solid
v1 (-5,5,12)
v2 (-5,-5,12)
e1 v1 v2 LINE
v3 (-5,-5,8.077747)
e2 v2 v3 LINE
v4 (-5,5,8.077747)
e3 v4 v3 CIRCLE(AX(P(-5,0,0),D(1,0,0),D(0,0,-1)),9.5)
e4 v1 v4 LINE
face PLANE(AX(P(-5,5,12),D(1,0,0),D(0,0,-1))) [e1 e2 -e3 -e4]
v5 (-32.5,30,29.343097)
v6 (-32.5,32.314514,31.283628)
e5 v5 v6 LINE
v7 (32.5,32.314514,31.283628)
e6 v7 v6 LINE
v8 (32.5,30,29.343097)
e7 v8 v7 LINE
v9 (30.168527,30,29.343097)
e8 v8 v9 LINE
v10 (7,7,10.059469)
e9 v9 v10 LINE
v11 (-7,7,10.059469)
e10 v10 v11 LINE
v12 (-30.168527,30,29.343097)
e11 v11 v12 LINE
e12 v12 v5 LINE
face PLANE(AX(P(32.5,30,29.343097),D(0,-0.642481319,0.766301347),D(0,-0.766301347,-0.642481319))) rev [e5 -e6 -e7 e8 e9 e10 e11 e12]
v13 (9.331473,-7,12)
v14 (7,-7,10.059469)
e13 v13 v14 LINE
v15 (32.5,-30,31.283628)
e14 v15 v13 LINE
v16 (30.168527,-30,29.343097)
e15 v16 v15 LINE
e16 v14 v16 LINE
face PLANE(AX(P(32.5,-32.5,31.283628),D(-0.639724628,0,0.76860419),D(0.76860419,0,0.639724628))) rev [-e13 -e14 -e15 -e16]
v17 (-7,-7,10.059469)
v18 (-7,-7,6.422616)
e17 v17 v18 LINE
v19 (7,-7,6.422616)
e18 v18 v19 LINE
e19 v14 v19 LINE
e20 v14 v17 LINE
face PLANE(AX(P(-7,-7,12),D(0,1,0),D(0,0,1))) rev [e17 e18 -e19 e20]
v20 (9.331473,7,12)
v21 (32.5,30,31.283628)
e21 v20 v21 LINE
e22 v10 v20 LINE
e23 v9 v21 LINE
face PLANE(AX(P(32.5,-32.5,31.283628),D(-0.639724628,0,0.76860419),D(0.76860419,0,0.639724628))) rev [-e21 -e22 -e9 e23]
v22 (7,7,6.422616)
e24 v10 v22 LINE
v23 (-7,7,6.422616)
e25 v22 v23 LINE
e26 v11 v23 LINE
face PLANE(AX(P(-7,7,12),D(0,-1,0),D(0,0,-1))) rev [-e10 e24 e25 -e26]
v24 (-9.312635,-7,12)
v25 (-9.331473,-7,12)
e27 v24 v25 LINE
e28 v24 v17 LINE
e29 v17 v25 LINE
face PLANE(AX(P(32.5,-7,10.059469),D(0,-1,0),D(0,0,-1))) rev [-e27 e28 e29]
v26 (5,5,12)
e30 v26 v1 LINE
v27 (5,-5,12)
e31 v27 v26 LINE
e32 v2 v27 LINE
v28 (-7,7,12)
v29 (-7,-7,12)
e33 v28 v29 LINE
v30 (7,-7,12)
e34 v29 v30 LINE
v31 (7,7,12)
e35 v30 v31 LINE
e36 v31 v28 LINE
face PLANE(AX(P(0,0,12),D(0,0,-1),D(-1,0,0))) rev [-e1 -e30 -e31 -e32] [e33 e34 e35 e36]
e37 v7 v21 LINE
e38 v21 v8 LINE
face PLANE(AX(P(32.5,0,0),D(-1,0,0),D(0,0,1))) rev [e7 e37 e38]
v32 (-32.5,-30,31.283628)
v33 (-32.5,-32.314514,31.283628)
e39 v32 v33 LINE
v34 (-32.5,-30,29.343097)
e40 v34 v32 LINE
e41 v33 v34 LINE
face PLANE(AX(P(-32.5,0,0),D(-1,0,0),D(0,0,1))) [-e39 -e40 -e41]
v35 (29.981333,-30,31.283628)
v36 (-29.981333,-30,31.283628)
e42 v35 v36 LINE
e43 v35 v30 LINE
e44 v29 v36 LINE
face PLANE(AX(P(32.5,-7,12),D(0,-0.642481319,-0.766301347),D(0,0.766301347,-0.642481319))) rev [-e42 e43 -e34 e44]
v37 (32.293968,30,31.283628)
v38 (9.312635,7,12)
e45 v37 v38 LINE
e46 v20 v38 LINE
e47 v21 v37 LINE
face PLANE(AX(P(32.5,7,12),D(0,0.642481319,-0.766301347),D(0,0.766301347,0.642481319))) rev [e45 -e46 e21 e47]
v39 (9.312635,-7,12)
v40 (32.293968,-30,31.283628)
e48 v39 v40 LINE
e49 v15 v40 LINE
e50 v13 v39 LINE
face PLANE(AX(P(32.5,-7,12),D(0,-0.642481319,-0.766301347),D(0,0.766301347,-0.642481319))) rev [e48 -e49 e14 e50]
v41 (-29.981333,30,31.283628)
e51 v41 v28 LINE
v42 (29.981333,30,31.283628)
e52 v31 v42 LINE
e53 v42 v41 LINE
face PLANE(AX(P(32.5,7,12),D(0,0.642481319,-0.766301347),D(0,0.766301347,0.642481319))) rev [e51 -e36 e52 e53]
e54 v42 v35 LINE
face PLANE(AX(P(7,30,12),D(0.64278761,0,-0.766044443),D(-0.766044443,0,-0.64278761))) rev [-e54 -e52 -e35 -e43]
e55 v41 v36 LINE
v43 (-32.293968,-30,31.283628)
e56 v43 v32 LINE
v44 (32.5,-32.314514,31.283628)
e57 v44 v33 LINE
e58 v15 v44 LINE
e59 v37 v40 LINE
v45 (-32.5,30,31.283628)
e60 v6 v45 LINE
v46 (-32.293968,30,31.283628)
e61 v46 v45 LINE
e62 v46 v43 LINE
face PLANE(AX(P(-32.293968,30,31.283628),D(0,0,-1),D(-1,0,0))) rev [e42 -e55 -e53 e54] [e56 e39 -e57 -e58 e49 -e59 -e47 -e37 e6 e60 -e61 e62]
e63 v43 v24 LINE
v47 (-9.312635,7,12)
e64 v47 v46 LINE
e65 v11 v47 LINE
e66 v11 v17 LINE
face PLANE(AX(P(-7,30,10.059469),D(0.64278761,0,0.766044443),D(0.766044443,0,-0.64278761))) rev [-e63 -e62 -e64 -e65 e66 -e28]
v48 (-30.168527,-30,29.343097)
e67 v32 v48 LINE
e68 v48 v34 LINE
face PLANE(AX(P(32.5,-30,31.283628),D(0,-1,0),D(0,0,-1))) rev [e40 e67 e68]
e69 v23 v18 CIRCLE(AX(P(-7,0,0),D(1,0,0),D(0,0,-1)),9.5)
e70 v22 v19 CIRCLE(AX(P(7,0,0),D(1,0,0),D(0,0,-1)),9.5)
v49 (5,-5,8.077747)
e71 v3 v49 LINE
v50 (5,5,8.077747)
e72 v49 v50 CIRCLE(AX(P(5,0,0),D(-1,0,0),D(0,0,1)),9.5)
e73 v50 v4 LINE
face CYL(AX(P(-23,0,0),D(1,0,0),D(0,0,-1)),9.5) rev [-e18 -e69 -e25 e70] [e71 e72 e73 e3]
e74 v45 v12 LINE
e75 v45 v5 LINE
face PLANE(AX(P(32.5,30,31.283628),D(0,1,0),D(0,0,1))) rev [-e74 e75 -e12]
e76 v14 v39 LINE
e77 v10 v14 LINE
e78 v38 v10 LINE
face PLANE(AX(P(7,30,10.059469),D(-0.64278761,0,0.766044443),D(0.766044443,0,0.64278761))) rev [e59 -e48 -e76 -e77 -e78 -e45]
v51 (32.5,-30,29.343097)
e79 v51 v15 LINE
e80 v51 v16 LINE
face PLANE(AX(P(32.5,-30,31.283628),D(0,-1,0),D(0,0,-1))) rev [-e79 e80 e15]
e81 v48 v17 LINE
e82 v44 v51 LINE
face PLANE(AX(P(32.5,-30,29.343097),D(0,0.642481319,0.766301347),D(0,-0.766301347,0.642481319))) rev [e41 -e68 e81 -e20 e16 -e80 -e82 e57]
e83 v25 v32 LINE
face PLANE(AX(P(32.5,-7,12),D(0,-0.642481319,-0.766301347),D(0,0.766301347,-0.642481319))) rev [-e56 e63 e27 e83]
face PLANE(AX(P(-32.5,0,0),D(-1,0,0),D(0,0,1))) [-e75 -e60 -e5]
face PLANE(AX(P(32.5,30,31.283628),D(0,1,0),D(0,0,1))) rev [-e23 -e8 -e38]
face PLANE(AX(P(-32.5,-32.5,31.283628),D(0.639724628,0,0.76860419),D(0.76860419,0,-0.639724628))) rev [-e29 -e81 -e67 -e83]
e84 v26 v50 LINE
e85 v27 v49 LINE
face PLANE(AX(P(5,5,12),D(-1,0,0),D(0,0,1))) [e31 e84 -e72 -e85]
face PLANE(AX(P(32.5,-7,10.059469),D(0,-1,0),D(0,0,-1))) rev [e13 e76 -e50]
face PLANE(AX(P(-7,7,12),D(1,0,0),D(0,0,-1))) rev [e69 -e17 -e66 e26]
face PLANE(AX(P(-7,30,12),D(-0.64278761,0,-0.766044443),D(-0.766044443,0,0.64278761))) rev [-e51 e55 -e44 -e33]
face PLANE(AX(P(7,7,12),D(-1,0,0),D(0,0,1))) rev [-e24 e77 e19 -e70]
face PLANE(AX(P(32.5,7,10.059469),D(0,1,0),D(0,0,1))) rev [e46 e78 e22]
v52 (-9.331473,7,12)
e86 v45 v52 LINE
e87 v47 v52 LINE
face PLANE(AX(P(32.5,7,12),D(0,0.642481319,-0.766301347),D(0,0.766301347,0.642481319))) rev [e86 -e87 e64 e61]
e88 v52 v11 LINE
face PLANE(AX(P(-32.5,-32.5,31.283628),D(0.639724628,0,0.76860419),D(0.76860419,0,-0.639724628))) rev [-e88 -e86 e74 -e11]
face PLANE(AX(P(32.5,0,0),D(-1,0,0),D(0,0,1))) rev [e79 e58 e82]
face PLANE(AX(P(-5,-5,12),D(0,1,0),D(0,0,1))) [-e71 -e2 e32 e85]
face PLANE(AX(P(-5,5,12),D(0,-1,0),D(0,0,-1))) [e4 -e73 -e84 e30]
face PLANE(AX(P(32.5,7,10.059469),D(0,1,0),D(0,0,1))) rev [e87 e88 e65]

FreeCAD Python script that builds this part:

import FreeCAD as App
import Part
import Sketcher
Q = App.Units.Quantity

doc = App.newDocument("Part")
body = doc.addObject("PartDesign::Body", "Body")

# Sketch on XY plane
sketch1 = body.newObject("Sketcher::SketchObject", "Sketch")
sketch1.AttachmentSupport = (doc.getObject("XY_Plane"), [""])
sketch1.MapMode = "FlatFace"
sketch1.addGeometry(Part.LineSegment(App.Vector(-7, 7, 0), App.Vector(-7, -7, 0)), False)
sketch1.addGeometry(Part.LineSegment(App.Vector(-7, -7, 0), App.Vector(7, -7, 0)), False)
sketch1.addGeometry(Part.LineSegment(App.Vector(7, -7, 0), App.Vector(7, 7, 0)), False)
sketch1.addGeometry(Part.LineSegment(App.Vector(7, 7, 0), App.Vector(-7, 7, 0)), False)
sketch1.addGeometry(Part.LineSegment(App.Vector(5, -5, 0), App.Vector(-5, -5, 0)), False)
sketch1.addGeometry(Part.LineSegment(App.Vector(-5, -5, 0), App.Vector(-5, 5, 0)), False)
sketch1.addGeometry(Part.LineSegment(App.Vector(-5, 5, 0), App.Vector(5, 5, 0)), False)
sketch1.addGeometry(Part.LineSegment(App.Vector(5, 5, 0), App.Vector(5, -5, 0)), False)
sketch1.addConstraint(Sketcher.Constraint("Coincident", 0, 2, 1, 1))
sketch1.addConstraint(Sketcher.Constraint("Coincident", 1, 2, 2, 1))
sketch1.addConstraint(Sketcher.Constraint("Coincident", 2, 2, 3, 1))
sketch1.addConstraint(Sketcher.Constraint("Coincident", 3, 2, 0, 1))
sketch1.addConstraint(Sketcher.Constraint("Coincident", 4, 2, 5, 1))
sketch1.addConstraint(Sketcher.Constraint("Coincident", 5, 2, 6, 1))
sketch1.addConstraint(Sketcher.Constraint("Coincident", 6, 2, 7, 1))
sketch1.addConstraint(Sketcher.Constraint("Coincident", 7, 2, 4, 1))
sketch1.addConstraint(Sketcher.Constraint("Vertical", 0))
sketch1.addConstraint(Sketcher.Constraint("Horizontal", 1))
sketch1.addConstraint(Sketcher.Constraint("Vertical", 2))
sketch1.addConstraint(Sketcher.Constraint("Horizontal", 3))
sketch1.addConstraint(Sketcher.Constraint("Horizontal", 4))
sketch1.addConstraint(Sketcher.Constraint("Vertical", 5))
sketch1.addConstraint(Sketcher.Constraint("Horizontal", 6))
sketch1.addConstraint(Sketcher.Constraint("Vertical", 7))
sketch1.addConstraint(Sketcher.Constraint("Symmetric", 0, 2, 2, 2, -1, 1))
sketch1.addConstraint(Sketcher.Constraint("Symmetric", 4, 2, 6, 2, -1, 1))
sketch1.addConstraint(Sketcher.Constraint("Equal", 3, 0))
sketch1.addConstraint(Sketcher.Constraint("Equal", 6, 5))
sketch1.addConstraint(Sketcher.Constraint("DistanceX", 1, 1, 1, 2, Q("14 mm")))
sketch1.addConstraint(Sketcher.Constraint("DistanceX", 4, 2, 4, 1, Q("10 mm")))
pad1 = body.newObject("PartDesign::Pad", "Pad")
pad1.Profile = sketch1
pad1.Length = 12

# Sketch on YZ plane
sketch2 = body.newObject("Sketcher::SketchObject", "Sketch001")
sketch2.AttachmentSupport = (doc.getObject("YZ_Plane"), [""])
sketch2.MapMode = "FlatFace"
sketch2.AttachmentOffset = App.Placement(App.Vector(0, 0, 7), App.Rotation())
sketch2.addGeometry(Part.Circle(App.Vector(0, 0, 0), App.Vector(0, 0, 1), 10), False)
sketch2.addConstraint(Sketcher.Constraint("Coincident", 0, 3, -1, 1))
sketch2.addConstraint(Sketcher.Constraint("Diameter", 0, Q("19 mm")))
pocket1 = body.newObject("PartDesign::Pocket", "Pocket")
pocket1.Profile = sketch2
pocket1.Length = 30

# Sketch on XZ plane
sketch3 = body.newObject("Sketcher::SketchObject", "Sketch002")
sketch3.AttachmentSupport = (doc.getObject("XZ_Plane"), [""])
sketch3.MapMode = "FlatFace"
sketch3.addGeometry(Part.LineSegment(App.Vector(-30, 31.3, 0), App.Vector(-7, 12, 0)), False)
sketch3.addGeometry(Part.LineSegment(App.Vector(-7, 12, 0), App.Vector(-7, 10.1, 0)), False)
sketch3.addGeometry(Part.LineSegment(App.Vector(-7, 10.1, 0), App.Vector(-32.3, 31.3, 0)), False)
sketch3.addGeometry(Part.LineSegment(App.Vector(-32.3, 31.3, 0), App.Vector(-30, 31.3, 0)), False)
sketch3.addGeometry(Part.LineSegment(App.Vector(7, 10.1, 0), App.Vector(7, 12, 0)), False)
sketch3.addGeometry(Part.LineSegment(App.Vector(7, 12, 0), App.Vector(30, 31.3, 0)), False)
sketch3.addGeometry(Part.LineSegment(App.Vector(30, 31.3, 0), App.Vector(32.3, 31.3, 0)), False)
sketch3.addGeometry(Part.LineSegment(App.Vector(32.3, 31.3, 0), App.Vector(7, 10.1, 0)), False)
sketch3.addConstraint(Sketcher.Constraint("Coincident", 0, 2, 1, 1))
sketch3.addConstraint(Sketcher.Constraint("Coincident", 1, 2, 2, 1))
sketch3.addConstraint(Sketcher.Constraint("Coincident", 2, 2, 3, 1))
sketch3.addConstraint(Sketcher.Constraint("Coincident", 3, 2, 0, 1))
sketch3.addConstraint(Sketcher.Constraint("Coincident", 4, 2, 5, 1))
sketch3.addConstraint(Sketcher.Constraint("Coincident", 5, 2, 6, 1))
sketch3.addConstraint(Sketcher.Constraint("Coincident", 6, 2, 7, 1))
sketch3.addConstraint(Sketcher.Constraint("Coincident", 7, 2, 4, 1))
sketch3.addConstraint(Sketcher.Constraint("Vertical", 1))
sketch3.addConstraint(Sketcher.Constraint("Horizontal", 3))
sketch3.addConstraint(Sketcher.Constraint("Vertical", 4))
sketch3.addConstraint(Sketcher.Constraint("Horizontal", 6))
sketch3.addConstraint(Sketcher.Constraint("Symmetric", 0, 2, 4, 2, -2))
sketch3.addConstraint(Sketcher.Constraint("Symmetric", 3, 2, 5, 2, -2))
sketch3.addConstraint(Sketcher.Constraint("Parallel", 0, 2))
sketch3.addConstraint(Sketcher.Constraint("Parallel", 5, 7))
sketch3.addConstraint(Sketcher.Constraint("Horizontal", 1, 2, 7, 2))
sketch3.addConstraint(Sketcher.Constraint("Angle", 0, Q("-40 deg")))
sketch3.addConstraint(Sketcher.Constraint("Distance", 0, Q("30 mm")))
sketch3.addConstraint(Sketcher.Constraint("DistanceX", 0, 2, -1, 1, Q("7 mm")))
sketch3.addConstraint(Sketcher.Constraint("DistanceY", -1, 1, 0, 2, Q("12 mm")))
sketch3.addConstraint(Sketcher.Constraint("DistanceY", 1, 2, 1, 1, Q("1.940531 mm")))
pad2 = body.newObject("PartDesign::Pad", "Pad001")
pad2.Profile = sketch3
pad2.Length = 60
pad2.Midplane = True

# Sketch on YZ plane
sketch4 = body.newObject("Sketcher::SketchObject", "Sketch003")
sketch4.AttachmentSupport = (doc.getObject("YZ_Plane"), [""])
sketch4.MapMode = "FlatFace"
sketch4.addGeometry(Part.LineSegment(App.Vector(-7, 10.1, 0), App.Vector(-7, 12, 0)), False)
sketch4.addGeometry(Part.LineSegment(App.Vector(-7, 12, 0), App.Vector(-30, 31.3, 0)), False)
sketch4.addGeometry(Part.LineSegment(App.Vector(-30, 31.3, 0), App.Vector(-30, 29.3, 0)), False)
sketch4.addGeometry(Part.LineSegment(App.Vector(-30, 29.3, 0), App.Vector(-7, 10.1, 0)), False)
sketch4.addGeometry(Part.LineSegment(App.Vector(30, 29.3, 0), App.Vector(30, 31.3, 0)), False)
sketch4.addGeometry(Part.LineSegment(App.Vector(30, 31.3, 0), App.Vector(7, 12, 0)), False)
sketch4.addGeometry(Part.LineSegment(App.Vector(7, 12, 0), App.Vector(7, 10.1, 0)), False)
sketch4.addGeometry(Part.LineSegment(App.Vector(7, 10.1, 0), App.Vector(30, 29.3, 0)), False)
sketch4.addConstraint(Sketcher.Constraint("Coincident", 0, 2, 1, 1))
sketch4.addConstraint(Sketcher.Constraint("Coincident", 1, 2, 2, 1))
sketch4.addConstraint(Sketcher.Constraint("Coincident", 2, 2, 3, 1))
sketch4.addConstraint(Sketcher.Constraint("Coincident", 3, 2, 0, 1))
sketch4.addConstraint(Sketcher.Constraint("Coincident", 4, 2, 5, 1))
sketch4.addConstraint(Sketcher.Constraint("Coincident", 5, 2, 6, 1))
sketch4.addConstraint(Sketcher.Constraint("Coincident", 6, 2, 7, 1))
sketch4.addConstraint(Sketcher.Constraint("Coincident", 7, 2, 4, 1))
sketch4.addConstraint(Sketcher.Constraint("Vertical", 0))
sketch4.addConstraint(Sketcher.Constraint("Vertical", 2))
sketch4.addConstraint(Sketcher.Constraint("Vertical", 4))
sketch4.addConstraint(Sketcher.Constraint("Vertical", 6))
sketch4.addConstraint(Sketcher.Constraint("Symmetric", 1, 2, 4, 2, -2))
sketch4.addConstraint(Sketcher.Constraint("Symmetric", 0, 2, 5, 2, -2))
sketch4.addConstraint(Sketcher.Constraint("Parallel", 1, 3))
sketch4.addConstraint(Sketcher.Constraint("Parallel", 5, 7))
sketch4.addConstraint(Sketcher.Constraint("Horizontal", 3, 2, 6, 2))
sketch4.addConstraint(Sketcher.Constraint("DistanceX", 0, 2, -1, 1, Q("7 mm")))
sketch4.addConstraint(Sketcher.Constraint("DistanceY", -1, 1, 0, 2, Q("12 mm")))
sketch4.addConstraint(Sketcher.Constraint("DistanceX", 1, 2, -1, 1, Q("30 mm")))
sketch4.addConstraint(Sketcher.Constraint("Distance", 1, Q("30.014302 mm")))
sketch4.addConstraint(Sketcher.Constraint("DistanceY", 0, 1, 0, 2, Q("1.940531 mm")))
pad3 = body.newObject("PartDesign::Pad", "Pad002")
pad3.Profile = sketch4
pad3.Length = 65
pad3.Midplane = True

# Sketch on YZ plane
sketch5 = body.newObject("Sketcher::SketchObject", "Sketch004")
sketch5.AttachmentSupport = (doc.getObject("YZ_Plane"), [""])
sketch5.MapMode = "FlatFace"
sketch5.AttachmentOffset = App.Placement(App.Vector(0, 0, 32.5), App.Rotation())
sketch5.addGeometry(Part.LineSegment(App.Vector(30, 29, 0), App.Vector(7, 10, 0)), False)
sketch5.addGeometry(Part.LineSegment(App.Vector(7, 10, 0), App.Vector(30, 10, 0)), False)
sketch5.addGeometry(Part.LineSegment(App.Vector(30, 10, 0), App.Vector(30, 29, 0)), False)
sketch5.addGeometry(Part.LineSegment(App.Vector(-7, 10, 0), App.Vector(-30, 29, 0)), False)
sketch5.addGeometry(Part.LineSegment(App.Vector(-30, 29, 0), App.Vector(-30, 10, 0)), False)
sketch5.addGeometry(Part.LineSegment(App.Vector(-30, 10, 0), App.Vector(-7, 10, 0)), False)
sketch5.addConstraint(Sketcher.Constraint("Coincident", 0, 2, 1, 1))
sketch5.addConstraint(Sketcher.Constraint("Coincident", 1, 2, 2, 1))
sketch5.addConstraint(Sketcher.Constraint("Coincident", 2, 2, 0, 1))
sketch5.addConstraint(Sketcher.Constraint("Coincident", 3, 2, 4, 1))
sketch5.addConstraint(Sketcher.Constraint("Coincident", 4, 2, 5, 1))
sketch5.addConstraint(Sketcher.Constraint("Coincident", 5, 2, 3, 1))
sketch5.addConstraint(Sketcher.Constraint("Horizontal", 1))
sketch5.addConstraint(Sketcher.Constraint("Vertical", 2))
sketch5.addConstraint(Sketcher.Constraint("Vertical", 4))
sketch5.addConstraint(Sketcher.Constraint("Horizontal", 5))
sketch5.addConstraint(Sketcher.Constraint("Symmetric", 2, 2, 3, 2, -2))
sketch5.addConstraint(Sketcher.Constraint("Symmetric", 0, 2, 5, 2, -2))
sketch5.addConstraint(Sketcher.Constraint("DistanceX", 1, 1, 1, 2, Q("23 mm")))
sketch5.addConstraint(Sketcher.Constraint("DistanceX", -1, 1, 0, 2, Q("7 mm")))
sketch5.addConstraint(Sketcher.Constraint("Distance", 0, Q("30.014302 mm")))
sketch5.addConstraint(Sketcher.Constraint("DistanceY", -1, 1, 0, 2, Q("10.059469 mm")))
pocket2 = body.newObject("PartDesign::Pocket", "Pocket001")
pocket2.Profile = sketch5
pocket2.Type = "ThroughAll"

# Sketch on XZ plane
sketch6 = body.newObject("Sketcher::SketchObject", "Sketch005")
sketch6.AttachmentSupport = (doc.getObject("XZ_Plane"), [""])
sketch6.MapMode = "FlatFace"
sketch6.addGeometry(Part.LineSegment(App.Vector(-32, 31, 0), App.Vector(-7, 10, 0)), False)
sketch6.addGeometry(Part.LineSegment(App.Vector(-7, 10, 0), App.Vector(-32, 10, 0)), False)
sketch6.addGeometry(Part.LineSegment(App.Vector(-32, 10, 0), App.Vector(-32, 31, 0)), False)
sketch6.addGeometry(Part.LineSegment(App.Vector(32, 10, 0), App.Vector(7, 10, 0)), False)
sketch6.addGeometry(Part.LineSegment(App.Vector(7, 10, 0), App.Vector(32, 31, 0)), False)
sketch6.addGeometry(Part.LineSegment(App.Vector(32, 31, 0), App.Vector(32, 10, 0)), False)
sketch6.addConstraint(Sketcher.Constraint("Coincident", 0, 2, 1, 1))
sketch6.addConstraint(Sketcher.Constraint("Coincident", 1, 2, 2, 1))
sketch6.addConstraint(Sketcher.Constraint("Coincident", 2, 2, 0, 1))
sketch6.addConstraint(Sketcher.Constraint("Coincident", 3, 2, 4, 1))
sketch6.addConstraint(Sketcher.Constraint("Coincident", 4, 2, 5, 1))
sketch6.addConstraint(Sketcher.Constraint("Coincident", 5, 2, 3, 1))
sketch6.addConstraint(Sketcher.Constraint("Horizontal", 1))
sketch6.addConstraint(Sketcher.Constraint("Vertical", 2))
sketch6.addConstraint(Sketcher.Constraint("Horizontal", 3))
sketch6.addConstraint(Sketcher.Constraint("Vertical", 5))
sketch6.addConstraint(Sketcher.Constraint("Symmetric", 0, 2, 3, 2, -2))
sketch6.addConstraint(Sketcher.Constraint("Symmetric", 2, 2, 4, 2, -2))
sketch6.addConstraint(Sketcher.Constraint("DistanceX", 1, 2, 1, 1, Q("25.5 mm")))
sketch6.addConstraint(Sketcher.Constraint("DistanceX", 0, 2, -1, 1, Q("7 mm")))
sketch6.addConstraint(Sketcher.Constraint("DistanceY", 2, 1, 2, 2, Q("21.22416 mm")))
sketch6.addConstraint(Sketcher.Constraint("DistanceY", -1, 1, 0, 2, Q("10.059469 mm")))
pocket3 = body.newObject("PartDesign::Pocket", "Pocket002")
pocket3.Profile = sketch6
pocket3.Length = 65
pocket3.Midplane = True

# Sketch on YZ plane
sketch7 = body.newObject("Sketcher::SketchObject", "Sketch006")
sketch7.AttachmentSupport = (doc.getObject("YZ_Plane"), [""])
sketch7.MapMode = "FlatFace"
sketch7.addGeometry(Part.LineSegment(App.Vector(-30, 29.3, 0), App.Vector(-30, 31.3, 0)), False)
sketch7.addGeometry(Part.LineSegment(App.Vector(-30, 31.3, 0), App.Vector(-32.3, 31.3, 0)), False)
sketch7.addGeometry(Part.LineSegment(App.Vector(-32.3, 31.3, 0), App.Vector(-30, 29.3, 0)), False)
sketch7.addGeometry(Part.LineSegment(App.Vector(30, 29.3, 0), App.Vector(32.3, 31.3, 0)), False)
sketch7.addGeometry(Part.LineSegment(App.Vector(32.3, 31.3, 0), App.Vector(30, 31.3, 0)), False)
sketch7.addGeometry(Part.LineSegment(App.Vector(30, 31.3, 0), App.Vector(30, 29.3, 0)), False)
sketch7.addConstraint(Sketcher.Constraint("Coincident", 0, 2, 1, 1))
sketch7.addConstraint(Sketcher.Constraint("Coincident", 1, 2, 2, 1))
sketch7.addConstraint(Sketcher.Constraint("Coincident", 2, 2, 0, 1))
sketch7.addConstraint(Sketcher.Constraint("Coincident", 3, 2, 4, 1))
sketch7.addConstraint(Sketcher.Constraint("Coincident", 4, 2, 5, 1))
sketch7.addConstraint(Sketcher.Constraint("Coincident", 5, 2, 3, 1))
sketch7.addConstraint(Sketcher.Constraint("Vertical", 0))
sketch7.addConstraint(Sketcher.Constraint("Horizontal", 1))
sketch7.addConstraint(Sketcher.Constraint("Horizontal", 4))
sketch7.addConstraint(Sketcher.Constraint("Vertical", 5))
sketch7.addConstraint(Sketcher.Constraint("Symmetric", 1, 2, 3, 2, -2))
sketch7.addConstraint(Sketcher.Constraint("Symmetric", 2, 2, 5, 2, -2))
sketch7.addConstraint(Sketcher.Constraint("DistanceX", 0, 2, -1, 1, Q("30 mm")))
sketch7.addConstraint(Sketcher.Constraint("DistanceY", 0, 1, 0, 2, Q("1.940531 mm")))
sketch7.addConstraint(Sketcher.Constraint("Distance", 2, Q("3.02037 mm")))
sketch7.addConstraint(Sketcher.Constraint("DistanceY", -1, 1, 0, 2, Q("31.283628 mm")))
pad4 = body.newObject("PartDesign::Pad", "Pad003")
pad4.Profile = sketch7
pad4.Length = 65
pad4.Midplane = True

doc.recompute()
